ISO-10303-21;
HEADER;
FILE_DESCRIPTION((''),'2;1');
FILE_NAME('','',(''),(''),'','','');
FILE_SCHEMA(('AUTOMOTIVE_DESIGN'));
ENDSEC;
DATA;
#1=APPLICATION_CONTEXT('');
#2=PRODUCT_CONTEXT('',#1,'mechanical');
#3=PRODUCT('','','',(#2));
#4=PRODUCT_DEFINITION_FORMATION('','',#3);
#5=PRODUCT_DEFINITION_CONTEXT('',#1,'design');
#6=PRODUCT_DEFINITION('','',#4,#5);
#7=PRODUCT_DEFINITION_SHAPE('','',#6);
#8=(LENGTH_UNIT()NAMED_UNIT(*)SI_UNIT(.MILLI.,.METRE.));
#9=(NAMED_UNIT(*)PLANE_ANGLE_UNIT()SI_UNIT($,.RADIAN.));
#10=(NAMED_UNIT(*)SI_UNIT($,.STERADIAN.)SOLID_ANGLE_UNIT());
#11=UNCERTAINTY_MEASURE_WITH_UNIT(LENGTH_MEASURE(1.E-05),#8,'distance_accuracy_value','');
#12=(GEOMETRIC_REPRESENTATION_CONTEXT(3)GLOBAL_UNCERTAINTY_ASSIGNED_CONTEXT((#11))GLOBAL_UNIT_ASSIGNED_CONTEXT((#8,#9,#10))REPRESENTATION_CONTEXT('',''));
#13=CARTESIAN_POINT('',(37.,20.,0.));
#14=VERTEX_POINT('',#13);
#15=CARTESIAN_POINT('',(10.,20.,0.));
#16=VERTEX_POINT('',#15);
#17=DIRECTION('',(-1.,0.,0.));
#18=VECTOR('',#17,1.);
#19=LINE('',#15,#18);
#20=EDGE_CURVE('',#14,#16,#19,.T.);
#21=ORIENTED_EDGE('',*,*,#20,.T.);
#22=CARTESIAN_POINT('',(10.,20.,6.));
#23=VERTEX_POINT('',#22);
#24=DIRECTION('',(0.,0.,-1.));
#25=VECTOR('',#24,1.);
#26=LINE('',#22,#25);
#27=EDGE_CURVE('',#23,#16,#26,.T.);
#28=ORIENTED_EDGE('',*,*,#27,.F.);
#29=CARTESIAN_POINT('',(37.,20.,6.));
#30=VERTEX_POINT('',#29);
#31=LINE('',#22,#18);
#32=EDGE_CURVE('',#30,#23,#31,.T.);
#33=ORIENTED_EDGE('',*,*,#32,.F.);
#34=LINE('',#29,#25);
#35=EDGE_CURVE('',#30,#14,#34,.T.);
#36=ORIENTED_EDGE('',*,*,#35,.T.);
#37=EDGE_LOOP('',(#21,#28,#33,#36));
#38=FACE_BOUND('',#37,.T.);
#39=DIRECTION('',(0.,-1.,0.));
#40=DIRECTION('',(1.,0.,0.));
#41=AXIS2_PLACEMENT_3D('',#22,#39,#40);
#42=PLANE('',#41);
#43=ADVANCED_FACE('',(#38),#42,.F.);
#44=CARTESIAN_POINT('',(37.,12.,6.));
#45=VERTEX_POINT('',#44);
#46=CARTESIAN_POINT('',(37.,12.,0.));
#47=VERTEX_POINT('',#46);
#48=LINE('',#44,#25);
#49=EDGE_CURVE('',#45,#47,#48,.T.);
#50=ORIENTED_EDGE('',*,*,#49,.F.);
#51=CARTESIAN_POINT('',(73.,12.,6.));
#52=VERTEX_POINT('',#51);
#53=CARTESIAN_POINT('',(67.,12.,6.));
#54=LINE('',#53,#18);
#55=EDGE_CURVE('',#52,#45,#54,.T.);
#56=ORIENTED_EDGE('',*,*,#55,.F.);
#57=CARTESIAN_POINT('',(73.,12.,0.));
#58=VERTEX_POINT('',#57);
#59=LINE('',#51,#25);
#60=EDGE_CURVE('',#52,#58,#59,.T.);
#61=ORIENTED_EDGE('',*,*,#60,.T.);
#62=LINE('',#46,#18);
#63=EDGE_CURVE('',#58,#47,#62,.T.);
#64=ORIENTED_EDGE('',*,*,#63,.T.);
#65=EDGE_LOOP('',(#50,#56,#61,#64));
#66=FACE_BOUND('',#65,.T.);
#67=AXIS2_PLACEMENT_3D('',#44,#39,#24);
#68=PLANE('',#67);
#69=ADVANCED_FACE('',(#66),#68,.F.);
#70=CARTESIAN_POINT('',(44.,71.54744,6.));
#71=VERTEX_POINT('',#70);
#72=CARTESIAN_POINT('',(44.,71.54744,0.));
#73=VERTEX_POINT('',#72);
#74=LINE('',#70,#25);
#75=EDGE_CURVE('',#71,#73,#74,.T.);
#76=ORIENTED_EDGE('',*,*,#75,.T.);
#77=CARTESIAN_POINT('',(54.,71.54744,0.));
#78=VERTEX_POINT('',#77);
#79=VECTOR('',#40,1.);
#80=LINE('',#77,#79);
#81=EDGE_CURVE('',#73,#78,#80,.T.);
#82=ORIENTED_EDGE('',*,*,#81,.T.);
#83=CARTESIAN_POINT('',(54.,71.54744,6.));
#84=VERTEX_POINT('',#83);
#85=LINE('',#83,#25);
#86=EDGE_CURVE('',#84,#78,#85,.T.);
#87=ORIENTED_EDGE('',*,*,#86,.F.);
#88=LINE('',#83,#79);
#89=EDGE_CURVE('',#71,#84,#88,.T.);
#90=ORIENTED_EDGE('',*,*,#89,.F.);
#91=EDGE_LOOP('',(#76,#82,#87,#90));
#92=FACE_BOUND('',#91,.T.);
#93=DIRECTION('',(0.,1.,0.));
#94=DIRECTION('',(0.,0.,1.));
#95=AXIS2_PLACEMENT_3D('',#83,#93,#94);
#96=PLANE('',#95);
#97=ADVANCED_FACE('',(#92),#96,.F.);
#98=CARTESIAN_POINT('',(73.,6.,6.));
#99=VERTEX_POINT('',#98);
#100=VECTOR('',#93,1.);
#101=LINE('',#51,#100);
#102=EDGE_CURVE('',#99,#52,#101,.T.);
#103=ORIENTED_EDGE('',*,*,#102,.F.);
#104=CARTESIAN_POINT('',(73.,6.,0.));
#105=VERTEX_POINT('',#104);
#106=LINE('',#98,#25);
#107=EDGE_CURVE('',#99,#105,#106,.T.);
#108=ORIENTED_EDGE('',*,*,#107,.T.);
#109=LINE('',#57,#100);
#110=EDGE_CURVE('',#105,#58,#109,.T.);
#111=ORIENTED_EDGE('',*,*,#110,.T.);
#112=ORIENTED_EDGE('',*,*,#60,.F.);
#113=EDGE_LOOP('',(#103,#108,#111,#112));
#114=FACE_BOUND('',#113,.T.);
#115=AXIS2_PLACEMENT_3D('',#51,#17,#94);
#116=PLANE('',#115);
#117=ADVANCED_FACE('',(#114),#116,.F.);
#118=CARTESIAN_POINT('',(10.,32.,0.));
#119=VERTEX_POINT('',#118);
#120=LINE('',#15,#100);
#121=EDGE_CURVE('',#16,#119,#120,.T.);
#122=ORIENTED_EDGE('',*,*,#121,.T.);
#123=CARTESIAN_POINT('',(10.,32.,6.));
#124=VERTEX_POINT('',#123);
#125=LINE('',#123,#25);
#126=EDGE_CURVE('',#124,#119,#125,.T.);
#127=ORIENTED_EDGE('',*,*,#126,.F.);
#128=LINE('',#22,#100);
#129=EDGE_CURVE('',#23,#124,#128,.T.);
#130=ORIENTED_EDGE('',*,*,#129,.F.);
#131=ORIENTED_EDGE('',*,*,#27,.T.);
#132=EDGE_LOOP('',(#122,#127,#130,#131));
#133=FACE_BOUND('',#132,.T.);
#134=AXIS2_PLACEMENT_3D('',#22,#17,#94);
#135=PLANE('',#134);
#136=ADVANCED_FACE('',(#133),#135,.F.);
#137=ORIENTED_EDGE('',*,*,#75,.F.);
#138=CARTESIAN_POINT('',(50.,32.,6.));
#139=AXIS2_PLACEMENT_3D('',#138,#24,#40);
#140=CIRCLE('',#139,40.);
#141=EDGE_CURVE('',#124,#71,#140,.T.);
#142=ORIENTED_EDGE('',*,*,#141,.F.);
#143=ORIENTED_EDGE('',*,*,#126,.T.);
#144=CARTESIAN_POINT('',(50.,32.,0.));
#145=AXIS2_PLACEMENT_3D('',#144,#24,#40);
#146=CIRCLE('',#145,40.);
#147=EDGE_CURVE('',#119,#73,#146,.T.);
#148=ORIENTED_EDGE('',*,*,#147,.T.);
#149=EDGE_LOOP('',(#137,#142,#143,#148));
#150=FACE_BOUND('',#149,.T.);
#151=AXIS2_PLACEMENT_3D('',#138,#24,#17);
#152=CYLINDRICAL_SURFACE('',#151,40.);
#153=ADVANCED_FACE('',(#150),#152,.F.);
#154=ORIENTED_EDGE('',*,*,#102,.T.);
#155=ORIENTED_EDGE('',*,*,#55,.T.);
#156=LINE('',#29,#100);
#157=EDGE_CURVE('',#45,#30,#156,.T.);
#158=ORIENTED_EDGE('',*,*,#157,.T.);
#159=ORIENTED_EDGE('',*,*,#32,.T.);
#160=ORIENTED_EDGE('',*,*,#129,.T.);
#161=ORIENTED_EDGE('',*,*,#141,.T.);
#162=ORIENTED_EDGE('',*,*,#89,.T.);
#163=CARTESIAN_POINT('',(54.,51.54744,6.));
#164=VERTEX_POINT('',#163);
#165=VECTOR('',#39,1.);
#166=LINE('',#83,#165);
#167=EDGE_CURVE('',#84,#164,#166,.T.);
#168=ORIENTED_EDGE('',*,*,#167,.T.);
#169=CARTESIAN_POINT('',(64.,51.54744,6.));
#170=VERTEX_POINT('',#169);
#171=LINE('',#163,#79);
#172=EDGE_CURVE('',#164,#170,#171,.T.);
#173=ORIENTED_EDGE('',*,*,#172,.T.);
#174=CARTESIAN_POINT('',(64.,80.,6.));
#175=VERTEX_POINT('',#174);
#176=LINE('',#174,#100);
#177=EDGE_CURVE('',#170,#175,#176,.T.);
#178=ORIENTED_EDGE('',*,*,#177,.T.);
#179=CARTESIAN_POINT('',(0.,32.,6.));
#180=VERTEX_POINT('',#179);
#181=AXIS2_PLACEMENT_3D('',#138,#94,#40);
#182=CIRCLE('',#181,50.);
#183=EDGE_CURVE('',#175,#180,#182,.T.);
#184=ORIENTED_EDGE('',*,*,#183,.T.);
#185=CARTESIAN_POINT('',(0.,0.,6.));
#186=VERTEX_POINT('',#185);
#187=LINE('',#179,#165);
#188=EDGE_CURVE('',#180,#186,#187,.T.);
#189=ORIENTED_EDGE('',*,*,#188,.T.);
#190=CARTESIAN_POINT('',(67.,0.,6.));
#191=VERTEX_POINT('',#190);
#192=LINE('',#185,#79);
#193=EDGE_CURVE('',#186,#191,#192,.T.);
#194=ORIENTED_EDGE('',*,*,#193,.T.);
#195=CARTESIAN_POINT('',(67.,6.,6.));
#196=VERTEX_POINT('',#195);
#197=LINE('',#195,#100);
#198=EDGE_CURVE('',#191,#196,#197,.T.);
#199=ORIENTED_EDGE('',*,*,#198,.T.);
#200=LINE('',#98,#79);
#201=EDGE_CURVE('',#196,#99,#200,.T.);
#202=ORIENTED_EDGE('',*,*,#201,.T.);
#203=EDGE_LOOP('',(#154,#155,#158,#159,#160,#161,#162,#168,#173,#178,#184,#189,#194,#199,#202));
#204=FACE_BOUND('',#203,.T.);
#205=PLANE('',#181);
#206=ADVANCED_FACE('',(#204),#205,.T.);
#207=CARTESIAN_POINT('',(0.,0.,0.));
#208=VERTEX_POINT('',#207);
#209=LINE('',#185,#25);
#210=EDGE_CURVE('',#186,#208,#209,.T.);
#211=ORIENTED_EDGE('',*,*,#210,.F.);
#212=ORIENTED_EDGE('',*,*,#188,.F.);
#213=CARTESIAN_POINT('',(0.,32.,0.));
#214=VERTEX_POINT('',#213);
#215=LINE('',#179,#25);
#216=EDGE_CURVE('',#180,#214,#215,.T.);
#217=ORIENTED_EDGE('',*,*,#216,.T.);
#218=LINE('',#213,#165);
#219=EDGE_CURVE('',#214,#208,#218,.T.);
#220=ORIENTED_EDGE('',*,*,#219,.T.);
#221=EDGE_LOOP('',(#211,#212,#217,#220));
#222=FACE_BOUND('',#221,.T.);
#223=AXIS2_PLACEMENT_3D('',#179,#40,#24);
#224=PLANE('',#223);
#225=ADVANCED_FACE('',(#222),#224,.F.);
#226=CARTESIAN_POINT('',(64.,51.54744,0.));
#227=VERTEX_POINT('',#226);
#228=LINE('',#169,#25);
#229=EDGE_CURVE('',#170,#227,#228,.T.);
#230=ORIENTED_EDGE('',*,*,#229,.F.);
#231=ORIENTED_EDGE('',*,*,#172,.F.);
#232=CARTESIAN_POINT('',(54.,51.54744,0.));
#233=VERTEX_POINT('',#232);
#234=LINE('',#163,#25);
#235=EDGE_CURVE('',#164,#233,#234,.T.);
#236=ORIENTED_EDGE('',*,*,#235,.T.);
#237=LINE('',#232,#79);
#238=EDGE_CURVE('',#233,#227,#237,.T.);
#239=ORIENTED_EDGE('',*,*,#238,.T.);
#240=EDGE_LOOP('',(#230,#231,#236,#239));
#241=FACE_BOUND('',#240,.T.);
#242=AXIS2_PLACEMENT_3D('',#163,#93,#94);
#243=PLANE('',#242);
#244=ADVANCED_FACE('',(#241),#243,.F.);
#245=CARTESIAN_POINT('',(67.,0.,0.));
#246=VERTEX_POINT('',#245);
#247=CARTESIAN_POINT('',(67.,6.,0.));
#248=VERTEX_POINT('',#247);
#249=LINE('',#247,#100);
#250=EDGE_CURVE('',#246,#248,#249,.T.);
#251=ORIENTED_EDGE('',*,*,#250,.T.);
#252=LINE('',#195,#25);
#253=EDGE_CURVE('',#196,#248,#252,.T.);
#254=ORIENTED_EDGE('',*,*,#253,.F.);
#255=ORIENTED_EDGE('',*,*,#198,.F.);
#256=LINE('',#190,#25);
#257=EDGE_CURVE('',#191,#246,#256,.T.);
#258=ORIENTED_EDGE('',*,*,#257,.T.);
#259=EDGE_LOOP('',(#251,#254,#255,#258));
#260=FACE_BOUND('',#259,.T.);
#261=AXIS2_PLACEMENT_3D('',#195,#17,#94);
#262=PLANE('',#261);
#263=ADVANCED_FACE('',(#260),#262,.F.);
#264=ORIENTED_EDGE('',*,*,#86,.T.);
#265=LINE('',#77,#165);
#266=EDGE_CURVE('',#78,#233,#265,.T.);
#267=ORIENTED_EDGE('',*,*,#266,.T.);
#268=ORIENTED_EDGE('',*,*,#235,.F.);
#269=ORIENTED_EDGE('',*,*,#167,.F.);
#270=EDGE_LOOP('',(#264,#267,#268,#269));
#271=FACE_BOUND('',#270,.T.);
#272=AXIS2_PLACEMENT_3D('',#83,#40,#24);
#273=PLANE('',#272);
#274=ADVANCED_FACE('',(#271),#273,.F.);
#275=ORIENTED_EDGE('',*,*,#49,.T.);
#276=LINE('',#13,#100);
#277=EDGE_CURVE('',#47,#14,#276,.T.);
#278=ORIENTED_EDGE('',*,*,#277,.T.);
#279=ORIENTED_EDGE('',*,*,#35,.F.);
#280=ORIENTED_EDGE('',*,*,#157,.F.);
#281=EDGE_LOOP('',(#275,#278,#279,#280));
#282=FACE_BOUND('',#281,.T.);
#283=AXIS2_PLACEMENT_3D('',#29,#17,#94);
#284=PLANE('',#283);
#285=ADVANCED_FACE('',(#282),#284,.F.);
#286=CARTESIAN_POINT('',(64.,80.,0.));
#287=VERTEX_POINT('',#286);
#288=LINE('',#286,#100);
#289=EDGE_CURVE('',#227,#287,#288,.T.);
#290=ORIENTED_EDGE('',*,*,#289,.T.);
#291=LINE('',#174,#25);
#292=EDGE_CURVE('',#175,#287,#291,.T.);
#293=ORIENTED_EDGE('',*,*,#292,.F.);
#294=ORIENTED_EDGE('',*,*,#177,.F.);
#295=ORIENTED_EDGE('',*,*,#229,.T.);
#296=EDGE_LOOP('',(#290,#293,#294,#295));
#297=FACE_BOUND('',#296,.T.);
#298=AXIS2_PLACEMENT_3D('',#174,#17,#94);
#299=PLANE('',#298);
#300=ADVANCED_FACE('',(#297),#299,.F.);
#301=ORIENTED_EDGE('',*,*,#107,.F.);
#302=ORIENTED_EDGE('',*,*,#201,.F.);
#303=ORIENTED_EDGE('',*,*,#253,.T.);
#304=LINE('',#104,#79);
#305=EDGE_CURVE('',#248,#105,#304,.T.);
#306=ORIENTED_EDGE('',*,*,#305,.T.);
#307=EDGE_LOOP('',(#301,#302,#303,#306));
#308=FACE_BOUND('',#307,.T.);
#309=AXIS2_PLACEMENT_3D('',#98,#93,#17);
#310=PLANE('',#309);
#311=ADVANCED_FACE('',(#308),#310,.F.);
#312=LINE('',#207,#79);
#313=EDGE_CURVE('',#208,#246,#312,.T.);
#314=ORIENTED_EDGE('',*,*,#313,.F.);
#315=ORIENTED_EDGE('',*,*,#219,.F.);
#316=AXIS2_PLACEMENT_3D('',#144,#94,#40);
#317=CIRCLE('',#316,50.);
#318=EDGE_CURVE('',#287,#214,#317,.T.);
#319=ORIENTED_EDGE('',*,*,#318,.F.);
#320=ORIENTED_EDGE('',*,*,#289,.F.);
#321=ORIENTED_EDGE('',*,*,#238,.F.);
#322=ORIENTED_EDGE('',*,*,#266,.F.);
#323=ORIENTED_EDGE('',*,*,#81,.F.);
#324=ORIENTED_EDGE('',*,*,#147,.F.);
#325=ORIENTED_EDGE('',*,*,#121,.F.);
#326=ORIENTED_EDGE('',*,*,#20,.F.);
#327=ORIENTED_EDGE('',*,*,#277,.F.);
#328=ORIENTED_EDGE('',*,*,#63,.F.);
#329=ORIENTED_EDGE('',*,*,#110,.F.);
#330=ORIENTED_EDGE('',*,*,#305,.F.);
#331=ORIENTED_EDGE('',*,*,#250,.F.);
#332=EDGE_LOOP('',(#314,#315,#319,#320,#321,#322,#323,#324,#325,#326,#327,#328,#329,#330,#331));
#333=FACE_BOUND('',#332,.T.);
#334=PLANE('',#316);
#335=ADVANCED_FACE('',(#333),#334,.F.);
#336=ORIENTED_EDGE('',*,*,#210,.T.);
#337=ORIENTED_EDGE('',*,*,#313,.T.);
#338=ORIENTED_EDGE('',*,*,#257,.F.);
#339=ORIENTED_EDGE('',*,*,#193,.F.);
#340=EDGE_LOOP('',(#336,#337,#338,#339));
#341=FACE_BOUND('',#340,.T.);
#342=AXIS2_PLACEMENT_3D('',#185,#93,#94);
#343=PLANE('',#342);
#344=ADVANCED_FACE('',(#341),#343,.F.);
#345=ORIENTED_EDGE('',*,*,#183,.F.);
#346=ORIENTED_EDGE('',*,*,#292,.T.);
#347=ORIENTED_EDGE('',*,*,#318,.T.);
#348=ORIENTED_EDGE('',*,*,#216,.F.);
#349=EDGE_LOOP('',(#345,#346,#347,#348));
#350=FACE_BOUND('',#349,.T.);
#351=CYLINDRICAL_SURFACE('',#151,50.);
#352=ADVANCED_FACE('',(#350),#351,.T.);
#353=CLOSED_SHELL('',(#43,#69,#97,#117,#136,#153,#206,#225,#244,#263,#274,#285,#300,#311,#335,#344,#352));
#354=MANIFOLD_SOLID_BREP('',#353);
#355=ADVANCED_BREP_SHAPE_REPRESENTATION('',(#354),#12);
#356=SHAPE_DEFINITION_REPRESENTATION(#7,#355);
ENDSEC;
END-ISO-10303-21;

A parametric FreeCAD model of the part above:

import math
import FreeCAD as App
import Part
import Sketcher

doc = App.newDocument("Part")
body = doc.addObject("PartDesign::Body", "Body")

# Sketch on XY plane
sketch1 = doc.addObject("Sketcher::SketchObject", "Sketch")
body.addObject(sketch1)
sketch1.AttachmentSupport = (doc.XY_Plane, [""])
sketch1.MapMode = "FlatFace"
sketch1.addGeometry([
    Part.LineSegment(App.Vector(10, 20, 0), App.Vector(10, 32, 0)),  # 0
    Part.ArcOfCircle(Part.Circle(App.Vector(50, 32, 0), App.Vector(0, 0, 1), 40), math.radians(99), math.radians(180)),  # 1
    Part.LineSegment(App.Vector(44, 72, 0), App.Vector(54, 72, 0)),  # 2
    Part.LineSegment(App.Vector(54, 72, 0), App.Vector(54, 52, 0)),  # 3
    Part.LineSegment(App.Vector(54, 52, 0), App.Vector(64, 52, 0)),  # 4
    Part.LineSegment(App.Vector(64, 52, 0), App.Vector(64, 80, 0)),  # 5
    Part.ArcOfCircle(Part.Circle(App.Vector(50, 32, 0), App.Vector(0, 0, 1), 50), math.radians(74), math.radians(180)),  # 6
    Part.LineSegment(App.Vector(0, 32, 0), App.Vector(0, 0, 0)),  # 7
    Part.LineSegment(App.Vector(0, 0, 0), App.Vector(67, 0, 0)),  # 8
    Part.LineSegment(App.Vector(67, 0, 0), App.Vector(67, 6, 0)),  # 9
    Part.LineSegment(App.Vector(67, 6, 0), App.Vector(73, 6, 0)),  # 10
    Part.LineSegment(App.Vector(73, 6, 0), App.Vector(73, 12, 0)),  # 11
    Part.LineSegment(App.Vector(73, 12, 0), App.Vector(37, 12, 0)),  # 12
    Part.LineSegment(App.Vector(37, 12, 0), App.Vector(37, 20, 0)),  # 13
    Part.LineSegment(App.Vector(37, 20, 0), App.Vector(10, 20, 0)),  # 14
], False)
sketch1.addConstraint([
    Sketcher.Constraint("Tangent", 0, 2, 1, 2),
    Sketcher.Constraint("Coincident", 1, 1, 2, 1),
    Sketcher.Constraint("Coincident", 2, 2, 3, 1),
    Sketcher.Constraint("Coincident", 3, 2, 4, 1),
    Sketcher.Constraint("Coincident", 4, 2, 5, 1),
    Sketcher.Constraint("Coincident", 5, 2, 6, 1),
    Sketcher.Constraint("Tangent", 6, 2, 7, 1),
    Sketcher.Constraint("Coincident", 7, 2, 8, 1),
    Sketcher.Constraint("Coincident", 8, 2, 9, 1),
    Sketcher.Constraint("Coincident", 9, 2, 10, 1),
    Sketcher.Constraint("Coincident", 10, 2, 11, 1),
    Sketcher.Constraint("Coincident", 11, 2, 12, 1),
    Sketcher.Constraint("Coincident", 12, 2, 13, 1),
    Sketcher.Constraint("Coincident", 13, 2, 14, 1),
    Sketcher.Constraint("Coincident", 14, 2, 0, 1),
    Sketcher.Constraint("Vertical", 0),
    Sketcher.Constraint("Horizontal", 2),
    Sketcher.Constraint("Vertical", 3),
    Sketcher.Constraint("Horizontal", 4),
    Sketcher.Constraint("Vertical", 5),
    Sketcher.Constraint("Vertical", 7),
    Sketcher.Constraint("Horizontal", 8),
    Sketcher.Constraint("Vertical", 9),
    Sketcher.Constraint("Horizontal", 10),
    Sketcher.Constraint("Vertical", 11),
    Sketcher.Constraint("Horizontal", 12),
    Sketcher.Constraint("Vertical", 13),
    Sketcher.Constraint("Horizontal", 14),
    Sketcher.Constraint("Coincident", 7, 2, -1, 1),
    Sketcher.Constraint("Coincident", 6, 3, 1, 3),
    Sketcher.Constraint("Equal", 2, 4),
    Sketcher.Constraint("Equal", 10, 9),
    Sketcher.Constraint("Equal", 9, 11),
    Sketcher.Constraint("Radius", 1, 40.0),
    Sketcher.Constraint("Radius", 6, 50.0),
    Sketcher.Constraint("DistanceX", 2, 1, 2, 2, 10.0),
    Sketcher.Constraint("DistanceX", 8, 1, 8, 2, 67.0),
    Sketcher.Constraint("DistanceX", 10, 1, 10, 2, 6.0),
    Sketcher.Constraint("DistanceX", 12, 2, 12, 1, 36.0),
    Sketcher.Constraint("DistanceY", 0, 1, 0, 2, 12.0),
    Sketcher.Constraint("DistanceY", 3, 2, 3, 1, 20.0),
    Sketcher.Constraint("DistanceY", 7, 2, 7, 1, 32.0),
    Sketcher.Constraint("DistanceX", -1, 1, 1, 1, 44.0),
])
pad1 = doc.addObject("PartDesign::Pad", "Pad")
body.addObject(pad1)
pad1.Profile = sketch1
pad1.Length = 6

doc.recompute()
